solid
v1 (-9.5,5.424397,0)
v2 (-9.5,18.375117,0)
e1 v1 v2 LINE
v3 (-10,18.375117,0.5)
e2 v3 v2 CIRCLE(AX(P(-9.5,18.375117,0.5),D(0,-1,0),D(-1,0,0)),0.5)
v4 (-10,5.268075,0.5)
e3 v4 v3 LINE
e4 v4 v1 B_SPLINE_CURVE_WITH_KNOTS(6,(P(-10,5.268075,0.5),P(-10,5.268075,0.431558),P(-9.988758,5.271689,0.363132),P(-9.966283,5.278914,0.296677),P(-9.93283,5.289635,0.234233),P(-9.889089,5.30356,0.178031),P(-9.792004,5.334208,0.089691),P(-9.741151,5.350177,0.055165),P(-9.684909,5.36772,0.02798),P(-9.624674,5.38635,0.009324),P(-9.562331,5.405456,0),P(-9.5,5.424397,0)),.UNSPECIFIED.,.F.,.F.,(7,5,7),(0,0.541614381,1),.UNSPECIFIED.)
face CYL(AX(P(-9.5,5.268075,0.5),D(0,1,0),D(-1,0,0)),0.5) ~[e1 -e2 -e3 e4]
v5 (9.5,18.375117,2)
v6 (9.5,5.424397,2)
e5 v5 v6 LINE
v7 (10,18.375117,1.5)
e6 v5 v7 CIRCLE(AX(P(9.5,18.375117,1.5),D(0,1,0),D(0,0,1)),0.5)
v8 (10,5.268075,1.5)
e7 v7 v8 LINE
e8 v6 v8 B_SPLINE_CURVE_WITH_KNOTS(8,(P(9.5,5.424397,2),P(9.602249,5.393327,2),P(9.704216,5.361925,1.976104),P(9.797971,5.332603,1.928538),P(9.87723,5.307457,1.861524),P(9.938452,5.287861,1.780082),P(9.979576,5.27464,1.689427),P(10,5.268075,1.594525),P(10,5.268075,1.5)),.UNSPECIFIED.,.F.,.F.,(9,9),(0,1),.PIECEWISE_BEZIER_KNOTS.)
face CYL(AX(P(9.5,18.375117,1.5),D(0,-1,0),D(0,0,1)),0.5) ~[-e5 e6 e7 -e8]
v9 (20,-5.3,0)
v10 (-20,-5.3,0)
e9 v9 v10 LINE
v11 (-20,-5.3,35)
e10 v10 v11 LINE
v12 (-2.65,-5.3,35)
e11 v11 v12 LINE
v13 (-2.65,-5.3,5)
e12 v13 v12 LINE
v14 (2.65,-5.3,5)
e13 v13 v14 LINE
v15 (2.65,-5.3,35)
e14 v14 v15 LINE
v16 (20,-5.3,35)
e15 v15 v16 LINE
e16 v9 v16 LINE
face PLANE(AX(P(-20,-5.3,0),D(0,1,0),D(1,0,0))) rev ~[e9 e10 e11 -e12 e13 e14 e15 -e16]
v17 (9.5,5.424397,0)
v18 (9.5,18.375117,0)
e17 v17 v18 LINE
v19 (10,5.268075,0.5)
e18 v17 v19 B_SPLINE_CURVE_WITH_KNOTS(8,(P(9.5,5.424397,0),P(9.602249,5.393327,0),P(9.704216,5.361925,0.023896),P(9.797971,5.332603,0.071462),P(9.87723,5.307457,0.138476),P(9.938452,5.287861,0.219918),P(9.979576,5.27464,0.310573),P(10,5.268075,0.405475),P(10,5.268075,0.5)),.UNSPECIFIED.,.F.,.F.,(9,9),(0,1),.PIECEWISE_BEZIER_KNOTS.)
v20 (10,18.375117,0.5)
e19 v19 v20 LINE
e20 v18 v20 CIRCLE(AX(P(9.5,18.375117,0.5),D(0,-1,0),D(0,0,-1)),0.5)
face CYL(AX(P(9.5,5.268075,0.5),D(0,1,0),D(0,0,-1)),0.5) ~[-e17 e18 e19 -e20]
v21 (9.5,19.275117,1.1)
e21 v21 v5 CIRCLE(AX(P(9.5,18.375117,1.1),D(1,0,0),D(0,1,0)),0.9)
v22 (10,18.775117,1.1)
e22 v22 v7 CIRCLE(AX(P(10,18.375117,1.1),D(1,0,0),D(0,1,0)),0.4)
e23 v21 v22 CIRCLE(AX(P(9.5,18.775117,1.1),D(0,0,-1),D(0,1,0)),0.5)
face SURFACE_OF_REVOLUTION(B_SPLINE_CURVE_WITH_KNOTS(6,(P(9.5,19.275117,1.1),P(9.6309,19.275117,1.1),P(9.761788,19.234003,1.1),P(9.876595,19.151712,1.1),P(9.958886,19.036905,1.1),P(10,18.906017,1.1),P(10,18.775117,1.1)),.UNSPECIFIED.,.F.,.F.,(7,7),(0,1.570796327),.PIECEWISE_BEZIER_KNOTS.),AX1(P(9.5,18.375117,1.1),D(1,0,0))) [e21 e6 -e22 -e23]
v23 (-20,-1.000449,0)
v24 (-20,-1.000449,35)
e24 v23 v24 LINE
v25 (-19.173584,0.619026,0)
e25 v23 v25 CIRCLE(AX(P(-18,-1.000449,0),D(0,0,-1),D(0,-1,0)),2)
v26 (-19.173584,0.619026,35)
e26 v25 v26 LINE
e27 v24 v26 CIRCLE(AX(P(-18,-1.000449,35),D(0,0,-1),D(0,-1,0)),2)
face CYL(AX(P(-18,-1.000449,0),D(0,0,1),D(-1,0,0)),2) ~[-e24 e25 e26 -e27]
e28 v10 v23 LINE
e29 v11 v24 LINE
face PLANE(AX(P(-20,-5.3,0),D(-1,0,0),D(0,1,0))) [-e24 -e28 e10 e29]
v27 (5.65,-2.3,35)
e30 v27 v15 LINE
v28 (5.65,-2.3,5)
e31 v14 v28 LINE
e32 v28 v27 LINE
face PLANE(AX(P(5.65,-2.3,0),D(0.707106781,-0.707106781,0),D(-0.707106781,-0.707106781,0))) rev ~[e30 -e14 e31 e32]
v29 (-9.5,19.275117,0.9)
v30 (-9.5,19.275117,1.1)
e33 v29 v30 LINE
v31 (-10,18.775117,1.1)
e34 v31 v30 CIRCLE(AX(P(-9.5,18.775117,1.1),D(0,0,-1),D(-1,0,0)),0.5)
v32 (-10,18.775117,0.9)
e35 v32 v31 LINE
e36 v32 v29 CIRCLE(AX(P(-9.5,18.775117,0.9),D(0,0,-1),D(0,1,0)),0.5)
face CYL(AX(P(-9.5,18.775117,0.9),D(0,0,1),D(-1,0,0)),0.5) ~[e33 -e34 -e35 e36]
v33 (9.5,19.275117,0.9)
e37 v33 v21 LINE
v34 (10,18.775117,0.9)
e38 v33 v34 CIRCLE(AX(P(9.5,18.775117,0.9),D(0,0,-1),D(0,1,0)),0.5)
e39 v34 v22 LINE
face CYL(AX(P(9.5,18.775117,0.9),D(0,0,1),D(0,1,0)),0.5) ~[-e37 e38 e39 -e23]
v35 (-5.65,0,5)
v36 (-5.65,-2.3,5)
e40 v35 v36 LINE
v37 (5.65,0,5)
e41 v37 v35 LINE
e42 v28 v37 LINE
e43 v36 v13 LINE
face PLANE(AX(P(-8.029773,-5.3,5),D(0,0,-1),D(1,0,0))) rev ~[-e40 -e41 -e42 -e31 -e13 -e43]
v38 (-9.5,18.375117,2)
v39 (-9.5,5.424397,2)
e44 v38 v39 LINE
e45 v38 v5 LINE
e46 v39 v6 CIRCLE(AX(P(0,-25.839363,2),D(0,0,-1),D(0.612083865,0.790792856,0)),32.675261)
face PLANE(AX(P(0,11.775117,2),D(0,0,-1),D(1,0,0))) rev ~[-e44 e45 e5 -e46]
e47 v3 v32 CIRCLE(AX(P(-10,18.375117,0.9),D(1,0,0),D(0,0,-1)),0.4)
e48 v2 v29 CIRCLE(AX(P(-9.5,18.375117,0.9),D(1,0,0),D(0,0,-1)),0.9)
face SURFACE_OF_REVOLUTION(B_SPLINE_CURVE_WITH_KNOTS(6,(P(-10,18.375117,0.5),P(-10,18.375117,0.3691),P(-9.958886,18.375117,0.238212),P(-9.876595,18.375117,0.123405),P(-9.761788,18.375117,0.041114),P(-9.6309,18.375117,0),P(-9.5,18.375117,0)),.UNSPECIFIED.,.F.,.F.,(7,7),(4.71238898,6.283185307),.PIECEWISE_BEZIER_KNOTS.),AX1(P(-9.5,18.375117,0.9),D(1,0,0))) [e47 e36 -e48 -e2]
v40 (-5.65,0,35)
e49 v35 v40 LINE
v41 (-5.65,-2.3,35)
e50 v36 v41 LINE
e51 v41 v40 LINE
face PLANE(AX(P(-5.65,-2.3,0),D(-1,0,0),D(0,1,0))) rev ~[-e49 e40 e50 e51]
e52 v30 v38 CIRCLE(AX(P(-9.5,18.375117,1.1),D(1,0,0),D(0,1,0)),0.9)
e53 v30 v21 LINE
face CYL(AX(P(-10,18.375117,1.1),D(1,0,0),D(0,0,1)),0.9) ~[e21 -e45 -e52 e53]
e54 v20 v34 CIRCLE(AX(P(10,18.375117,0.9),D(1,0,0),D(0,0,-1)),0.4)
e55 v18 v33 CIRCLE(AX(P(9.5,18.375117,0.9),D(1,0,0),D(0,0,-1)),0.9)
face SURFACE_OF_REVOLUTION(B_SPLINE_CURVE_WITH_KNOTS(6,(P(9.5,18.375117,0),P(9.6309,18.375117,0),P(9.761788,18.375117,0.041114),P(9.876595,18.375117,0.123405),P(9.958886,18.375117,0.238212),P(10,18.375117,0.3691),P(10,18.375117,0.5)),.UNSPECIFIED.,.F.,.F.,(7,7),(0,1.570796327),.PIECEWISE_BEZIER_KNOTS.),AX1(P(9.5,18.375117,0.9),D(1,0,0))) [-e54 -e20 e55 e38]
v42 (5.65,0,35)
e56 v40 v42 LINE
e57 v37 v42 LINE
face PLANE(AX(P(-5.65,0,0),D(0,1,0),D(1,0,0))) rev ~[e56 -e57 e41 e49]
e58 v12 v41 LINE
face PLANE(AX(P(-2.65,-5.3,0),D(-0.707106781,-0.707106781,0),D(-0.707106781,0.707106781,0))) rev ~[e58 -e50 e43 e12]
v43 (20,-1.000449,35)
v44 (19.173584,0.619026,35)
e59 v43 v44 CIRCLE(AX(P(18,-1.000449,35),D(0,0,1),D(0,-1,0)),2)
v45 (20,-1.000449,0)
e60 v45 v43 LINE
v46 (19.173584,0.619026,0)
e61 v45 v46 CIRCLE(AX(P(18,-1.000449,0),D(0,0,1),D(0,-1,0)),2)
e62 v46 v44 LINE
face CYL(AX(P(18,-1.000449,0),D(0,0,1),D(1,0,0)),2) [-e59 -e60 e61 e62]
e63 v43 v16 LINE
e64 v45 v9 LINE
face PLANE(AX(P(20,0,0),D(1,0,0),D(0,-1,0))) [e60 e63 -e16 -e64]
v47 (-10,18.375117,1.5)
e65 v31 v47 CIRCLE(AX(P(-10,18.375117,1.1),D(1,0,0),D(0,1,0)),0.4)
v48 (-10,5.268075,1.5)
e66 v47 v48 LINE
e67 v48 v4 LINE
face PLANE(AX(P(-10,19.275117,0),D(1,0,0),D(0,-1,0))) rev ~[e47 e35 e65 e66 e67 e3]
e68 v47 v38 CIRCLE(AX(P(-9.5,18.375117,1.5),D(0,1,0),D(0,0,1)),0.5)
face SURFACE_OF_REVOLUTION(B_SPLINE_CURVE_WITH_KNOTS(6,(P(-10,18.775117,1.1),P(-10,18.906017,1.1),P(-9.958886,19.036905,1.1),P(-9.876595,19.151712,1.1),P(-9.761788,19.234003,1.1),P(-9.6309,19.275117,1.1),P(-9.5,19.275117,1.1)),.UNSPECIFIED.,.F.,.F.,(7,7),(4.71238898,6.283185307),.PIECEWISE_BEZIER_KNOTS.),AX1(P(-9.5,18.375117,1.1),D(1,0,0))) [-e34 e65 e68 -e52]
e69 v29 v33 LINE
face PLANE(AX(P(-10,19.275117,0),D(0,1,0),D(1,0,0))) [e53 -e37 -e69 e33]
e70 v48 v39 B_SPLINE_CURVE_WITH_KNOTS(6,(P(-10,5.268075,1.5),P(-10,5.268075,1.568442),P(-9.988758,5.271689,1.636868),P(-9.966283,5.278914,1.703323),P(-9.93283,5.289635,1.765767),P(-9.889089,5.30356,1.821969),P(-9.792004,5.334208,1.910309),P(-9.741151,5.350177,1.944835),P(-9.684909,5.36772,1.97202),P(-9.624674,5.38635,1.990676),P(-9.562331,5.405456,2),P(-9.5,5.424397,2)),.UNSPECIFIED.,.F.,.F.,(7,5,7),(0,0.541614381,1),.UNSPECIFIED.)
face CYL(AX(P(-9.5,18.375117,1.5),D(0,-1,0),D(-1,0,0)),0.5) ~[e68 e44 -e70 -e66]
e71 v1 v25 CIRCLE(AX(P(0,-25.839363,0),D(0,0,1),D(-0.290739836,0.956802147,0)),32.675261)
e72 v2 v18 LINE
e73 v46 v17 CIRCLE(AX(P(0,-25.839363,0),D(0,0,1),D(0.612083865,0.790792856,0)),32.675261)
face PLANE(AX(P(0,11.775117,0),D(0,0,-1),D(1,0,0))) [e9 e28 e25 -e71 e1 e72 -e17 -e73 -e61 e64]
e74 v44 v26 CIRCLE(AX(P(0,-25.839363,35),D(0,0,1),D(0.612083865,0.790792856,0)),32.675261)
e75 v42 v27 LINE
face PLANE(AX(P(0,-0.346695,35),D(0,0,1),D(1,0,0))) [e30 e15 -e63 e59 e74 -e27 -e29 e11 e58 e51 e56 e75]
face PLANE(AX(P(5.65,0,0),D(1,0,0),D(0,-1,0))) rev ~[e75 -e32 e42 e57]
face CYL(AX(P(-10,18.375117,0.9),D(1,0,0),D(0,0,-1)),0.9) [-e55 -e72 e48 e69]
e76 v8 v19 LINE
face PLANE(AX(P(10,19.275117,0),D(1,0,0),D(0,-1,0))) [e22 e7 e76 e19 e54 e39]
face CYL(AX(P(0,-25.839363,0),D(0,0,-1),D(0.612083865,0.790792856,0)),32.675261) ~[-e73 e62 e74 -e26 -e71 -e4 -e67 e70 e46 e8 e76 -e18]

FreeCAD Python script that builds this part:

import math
import FreeCAD as App
import Part
import Sketcher

V = App.Vector


def edges_at(feature, points):
    """Names of the edges that pass closest to the given points."""
    edges = feature.Shape.Edges
    near = lambda p: min(range(len(edges)), key=lambda i: edges[i].distToShape(Part.Vertex(*p))[0])
    return sorted({f"Edge{near(p) + 1}" for p in points})


def add_polygon(sketch, points):
    """Adds a closed chain of lines whose ends are joined by coincident constraints."""
    first, n = sketch.GeometryCount, len(points)
    for a, b in zip(points, points[1:] + points[:1]):
        sketch.addGeometry(Part.LineSegment(App.Vector(*a, 0), App.Vector(*b, 0)), False)
    for i in range(n):
        sketch.addConstraint(Sketcher.Constraint("Coincident", first + i, 2, first + (i + 1) % n, 1))

doc = App.newDocument("Part")
body = doc.addObject("PartDesign::Body", "Body")

# Sketch on XY plane
sketch1 = doc.addObject("Sketcher::SketchObject", "Sketch")
body.addObject(sketch1)
sketch1.AttachmentSupport = (doc.XY_Plane, [""])
sketch1.MapMode = "FlatFace"
sketch1.addGeometry([
    Part.ArcOfCircle(Part.Circle(V(0, -25.8, 0), V(0, 0, 1), 32.7), math.radians(52), math.radians(128)),  # 0
    Part.LineSegment(V(-20, 0, 0), V(-20, -5.3, 0)),  # 1
    Part.LineSegment(V(-20, -5.3, 0), V(-2.6, -5.3, 0)),  # 2
    Part.LineSegment(V(-2.6, -5.3, 0), V(-5.7, -2.3, 0)),  # 3
    Part.LineSegment(V(-5.7, -2.3, 0), V(-5.7, 0, 0)),  # 4
    Part.LineSegment(V(-5.7, 0, 0), V(5.7, 0, 0)),  # 5
    Part.LineSegment(V(5.7, 0, 0), V(5.7, -2.3, 0)),  # 6
    Part.LineSegment(V(5.7, -2.3, 0), V(2.6, -5.3, 0)),  # 7
    Part.LineSegment(V(2.6, -5.3, 0), V(20, -5.3, 0)),  # 8
    Part.LineSegment(V(20, -5.3, 0), V(20, 0, 0)),  # 9
], False)
sketch1.addConstraint([
    Sketcher.Constraint("Coincident", 0, 2, 1, 1),
    Sketcher.Constraint("Coincident", 1, 2, 2, 1),
    Sketcher.Constraint("Coincident", 2, 2, 3, 1),
    Sketcher.Constraint("Coincident", 3, 2, 4, 1),
    Sketcher.Constraint("Coincident", 4, 2, 5, 1),
    Sketcher.Constraint("Coincident", 5, 2, 6, 1),
    Sketcher.Constraint("Coincident", 6, 2, 7, 1),
    Sketcher.Constraint("Coincident", 7, 2, 8, 1),
    Sketcher.Constraint("Coincident", 8, 2, 9, 1),
    Sketcher.Constraint("Coincident", 9, 2, 0, 1),
    Sketcher.Constraint("Vertical", 1),
    Sketcher.Constraint("Horizontal", 2),
    Sketcher.Constraint("Vertical", 4),
    Sketcher.Constraint("Horizontal", 5),
    Sketcher.Constraint("Vertical", 6),
    Sketcher.Constraint("Horizontal", 8),
    Sketcher.Constraint("Vertical", 9),
    Sketcher.Constraint("Symmetric", 4, 2, 5, 2, -1, 1),
    Sketcher.Constraint("Symmetric", 0, 2, 9, 2, -1, 1),
    Sketcher.Constraint("Symmetric", 2, 2, 7, 2, -2),
    Sketcher.Constraint("PointOnObject", 0, 3, -2),
    Sketcher.Constraint("Perpendicular", 3, 7),
    Sketcher.Constraint("Horizontal", 3, 2, 6, 2),
    Sketcher.Constraint("DistanceX", 5, 1, 5, 2, 11.3),
    Sketcher.Constraint("DistanceY", 1, 2, 1, 1, 5.3),
    Sketcher.Constraint("DistanceY", 4, 1, 4, 2, 2.3),
    Sketcher.Constraint("DistanceX", 0, 2, -1, 1, 20.0),
    Sketcher.Constraint("Radius", 0, 32.675261),
])
pad1 = doc.addObject("PartDesign::Pad", "Pad")
body.addObject(pad1)
pad1.Profile = sketch1
pad1.Length = 35

# Sketch on XY plane
sketch2 = doc.addObject("Sketcher::SketchObject", "Sketch001")
body.addObject(sketch2)
sketch2.AttachmentSupport = (doc.XY_Plane, [""])
sketch2.MapMode = "FlatFace"
add_polygon(sketch2, [(-10, 4), (-10, 19), (10, 19), (10, 4)])  # lines 0-3
sketch2.addConstraint([
    Sketcher.Constraint("Vertical", 0),
    Sketcher.Constraint("Horizontal", 1),
    Sketcher.Constraint("Vertical", 2),
    Sketcher.Constraint("Horizontal", 3),
    Sketcher.Constraint("DistanceX", 1, 1, 1, 2, 20.0),
    Sketcher.Constraint("DistanceY", 0, 1, 0, 2, 15.0),
    Sketcher.Constraint("DistanceX", 0, 2, -1, 1, 10.0),
    Sketcher.Constraint("DistanceY", -1, 1, 0, 2, 19.275117),
])
pad2 = doc.addObject("PartDesign::Pad", "Pad001")
body.addObject(pad2)
pad2.Profile = sketch2
pad2.Length = 2
doc.recompute()

fillet = doc.addObject("PartDesign::Fillet", "Fillet")
body.addObject(fillet)
fillet.Base = (pad2, edges_at(pad2, [(0, 19.275, 0), (0, 19.275, 2)]))
fillet.Radius = 0.9
doc.recompute()

fillet2 = doc.addObject("PartDesign::Fillet", "Fillet001")
body.addObject(fillet2)
fillet2.Base = (fillet, edges_at(fillet, [(10, 19.275, 1), (-10, 19.275, 1)]))
fillet2.Radius = 0.5
doc.recompute()

fillet3 = doc.addObject("PartDesign::Fillet", "Fillet002")
body.addObject(fillet3)
fillet3.Base = (fillet2, edges_at(fillet2, [(20, 0, 17.5), (-20, 0, 17.5)]))
fillet3.Radius = 2

# Sketch on XZ plane
sketch3 = doc.addObject("Sketcher::SketchObject", "Sketch002")
body.addObject(sketch3)
sketch3.AttachmentSupport = (doc.XZ_Plane, [""])
sketch3.MapMode = "FlatFace"
sketch3.AttachmentOffset = App.Placement(V(0, 0, 5.3), App.Rotation())
add_polygon(sketch3, [(-8, 5), (-8, 0), (8, 0), (8, 5)])  # lines 0-3
sketch3.addConstraint([
    Sketcher.Constraint("Vertical", 0),
    Sketcher.Constraint("Horizontal", 1),
    Sketcher.Constraint("Vertical", 2),
    Sketcher.Constraint("Horizontal", 3),
    Sketcher.Constraint("Symmetric", 0, 2, 1, 2, -1, 1),
    Sketcher.Constraint("DistanceY", 0, 2, 0, 1, 5.0),
    Sketcher.Constraint("DistanceX", 1, 1, 1, 2, 16.059546),
])
pad3 = doc.addObject("PartDesign::Pad", "Pad002")
body.addObject(pad3)
pad3.Profile = sketch3
pad3.Length = 10
pad3.Reversed = True

doc.recompute()
